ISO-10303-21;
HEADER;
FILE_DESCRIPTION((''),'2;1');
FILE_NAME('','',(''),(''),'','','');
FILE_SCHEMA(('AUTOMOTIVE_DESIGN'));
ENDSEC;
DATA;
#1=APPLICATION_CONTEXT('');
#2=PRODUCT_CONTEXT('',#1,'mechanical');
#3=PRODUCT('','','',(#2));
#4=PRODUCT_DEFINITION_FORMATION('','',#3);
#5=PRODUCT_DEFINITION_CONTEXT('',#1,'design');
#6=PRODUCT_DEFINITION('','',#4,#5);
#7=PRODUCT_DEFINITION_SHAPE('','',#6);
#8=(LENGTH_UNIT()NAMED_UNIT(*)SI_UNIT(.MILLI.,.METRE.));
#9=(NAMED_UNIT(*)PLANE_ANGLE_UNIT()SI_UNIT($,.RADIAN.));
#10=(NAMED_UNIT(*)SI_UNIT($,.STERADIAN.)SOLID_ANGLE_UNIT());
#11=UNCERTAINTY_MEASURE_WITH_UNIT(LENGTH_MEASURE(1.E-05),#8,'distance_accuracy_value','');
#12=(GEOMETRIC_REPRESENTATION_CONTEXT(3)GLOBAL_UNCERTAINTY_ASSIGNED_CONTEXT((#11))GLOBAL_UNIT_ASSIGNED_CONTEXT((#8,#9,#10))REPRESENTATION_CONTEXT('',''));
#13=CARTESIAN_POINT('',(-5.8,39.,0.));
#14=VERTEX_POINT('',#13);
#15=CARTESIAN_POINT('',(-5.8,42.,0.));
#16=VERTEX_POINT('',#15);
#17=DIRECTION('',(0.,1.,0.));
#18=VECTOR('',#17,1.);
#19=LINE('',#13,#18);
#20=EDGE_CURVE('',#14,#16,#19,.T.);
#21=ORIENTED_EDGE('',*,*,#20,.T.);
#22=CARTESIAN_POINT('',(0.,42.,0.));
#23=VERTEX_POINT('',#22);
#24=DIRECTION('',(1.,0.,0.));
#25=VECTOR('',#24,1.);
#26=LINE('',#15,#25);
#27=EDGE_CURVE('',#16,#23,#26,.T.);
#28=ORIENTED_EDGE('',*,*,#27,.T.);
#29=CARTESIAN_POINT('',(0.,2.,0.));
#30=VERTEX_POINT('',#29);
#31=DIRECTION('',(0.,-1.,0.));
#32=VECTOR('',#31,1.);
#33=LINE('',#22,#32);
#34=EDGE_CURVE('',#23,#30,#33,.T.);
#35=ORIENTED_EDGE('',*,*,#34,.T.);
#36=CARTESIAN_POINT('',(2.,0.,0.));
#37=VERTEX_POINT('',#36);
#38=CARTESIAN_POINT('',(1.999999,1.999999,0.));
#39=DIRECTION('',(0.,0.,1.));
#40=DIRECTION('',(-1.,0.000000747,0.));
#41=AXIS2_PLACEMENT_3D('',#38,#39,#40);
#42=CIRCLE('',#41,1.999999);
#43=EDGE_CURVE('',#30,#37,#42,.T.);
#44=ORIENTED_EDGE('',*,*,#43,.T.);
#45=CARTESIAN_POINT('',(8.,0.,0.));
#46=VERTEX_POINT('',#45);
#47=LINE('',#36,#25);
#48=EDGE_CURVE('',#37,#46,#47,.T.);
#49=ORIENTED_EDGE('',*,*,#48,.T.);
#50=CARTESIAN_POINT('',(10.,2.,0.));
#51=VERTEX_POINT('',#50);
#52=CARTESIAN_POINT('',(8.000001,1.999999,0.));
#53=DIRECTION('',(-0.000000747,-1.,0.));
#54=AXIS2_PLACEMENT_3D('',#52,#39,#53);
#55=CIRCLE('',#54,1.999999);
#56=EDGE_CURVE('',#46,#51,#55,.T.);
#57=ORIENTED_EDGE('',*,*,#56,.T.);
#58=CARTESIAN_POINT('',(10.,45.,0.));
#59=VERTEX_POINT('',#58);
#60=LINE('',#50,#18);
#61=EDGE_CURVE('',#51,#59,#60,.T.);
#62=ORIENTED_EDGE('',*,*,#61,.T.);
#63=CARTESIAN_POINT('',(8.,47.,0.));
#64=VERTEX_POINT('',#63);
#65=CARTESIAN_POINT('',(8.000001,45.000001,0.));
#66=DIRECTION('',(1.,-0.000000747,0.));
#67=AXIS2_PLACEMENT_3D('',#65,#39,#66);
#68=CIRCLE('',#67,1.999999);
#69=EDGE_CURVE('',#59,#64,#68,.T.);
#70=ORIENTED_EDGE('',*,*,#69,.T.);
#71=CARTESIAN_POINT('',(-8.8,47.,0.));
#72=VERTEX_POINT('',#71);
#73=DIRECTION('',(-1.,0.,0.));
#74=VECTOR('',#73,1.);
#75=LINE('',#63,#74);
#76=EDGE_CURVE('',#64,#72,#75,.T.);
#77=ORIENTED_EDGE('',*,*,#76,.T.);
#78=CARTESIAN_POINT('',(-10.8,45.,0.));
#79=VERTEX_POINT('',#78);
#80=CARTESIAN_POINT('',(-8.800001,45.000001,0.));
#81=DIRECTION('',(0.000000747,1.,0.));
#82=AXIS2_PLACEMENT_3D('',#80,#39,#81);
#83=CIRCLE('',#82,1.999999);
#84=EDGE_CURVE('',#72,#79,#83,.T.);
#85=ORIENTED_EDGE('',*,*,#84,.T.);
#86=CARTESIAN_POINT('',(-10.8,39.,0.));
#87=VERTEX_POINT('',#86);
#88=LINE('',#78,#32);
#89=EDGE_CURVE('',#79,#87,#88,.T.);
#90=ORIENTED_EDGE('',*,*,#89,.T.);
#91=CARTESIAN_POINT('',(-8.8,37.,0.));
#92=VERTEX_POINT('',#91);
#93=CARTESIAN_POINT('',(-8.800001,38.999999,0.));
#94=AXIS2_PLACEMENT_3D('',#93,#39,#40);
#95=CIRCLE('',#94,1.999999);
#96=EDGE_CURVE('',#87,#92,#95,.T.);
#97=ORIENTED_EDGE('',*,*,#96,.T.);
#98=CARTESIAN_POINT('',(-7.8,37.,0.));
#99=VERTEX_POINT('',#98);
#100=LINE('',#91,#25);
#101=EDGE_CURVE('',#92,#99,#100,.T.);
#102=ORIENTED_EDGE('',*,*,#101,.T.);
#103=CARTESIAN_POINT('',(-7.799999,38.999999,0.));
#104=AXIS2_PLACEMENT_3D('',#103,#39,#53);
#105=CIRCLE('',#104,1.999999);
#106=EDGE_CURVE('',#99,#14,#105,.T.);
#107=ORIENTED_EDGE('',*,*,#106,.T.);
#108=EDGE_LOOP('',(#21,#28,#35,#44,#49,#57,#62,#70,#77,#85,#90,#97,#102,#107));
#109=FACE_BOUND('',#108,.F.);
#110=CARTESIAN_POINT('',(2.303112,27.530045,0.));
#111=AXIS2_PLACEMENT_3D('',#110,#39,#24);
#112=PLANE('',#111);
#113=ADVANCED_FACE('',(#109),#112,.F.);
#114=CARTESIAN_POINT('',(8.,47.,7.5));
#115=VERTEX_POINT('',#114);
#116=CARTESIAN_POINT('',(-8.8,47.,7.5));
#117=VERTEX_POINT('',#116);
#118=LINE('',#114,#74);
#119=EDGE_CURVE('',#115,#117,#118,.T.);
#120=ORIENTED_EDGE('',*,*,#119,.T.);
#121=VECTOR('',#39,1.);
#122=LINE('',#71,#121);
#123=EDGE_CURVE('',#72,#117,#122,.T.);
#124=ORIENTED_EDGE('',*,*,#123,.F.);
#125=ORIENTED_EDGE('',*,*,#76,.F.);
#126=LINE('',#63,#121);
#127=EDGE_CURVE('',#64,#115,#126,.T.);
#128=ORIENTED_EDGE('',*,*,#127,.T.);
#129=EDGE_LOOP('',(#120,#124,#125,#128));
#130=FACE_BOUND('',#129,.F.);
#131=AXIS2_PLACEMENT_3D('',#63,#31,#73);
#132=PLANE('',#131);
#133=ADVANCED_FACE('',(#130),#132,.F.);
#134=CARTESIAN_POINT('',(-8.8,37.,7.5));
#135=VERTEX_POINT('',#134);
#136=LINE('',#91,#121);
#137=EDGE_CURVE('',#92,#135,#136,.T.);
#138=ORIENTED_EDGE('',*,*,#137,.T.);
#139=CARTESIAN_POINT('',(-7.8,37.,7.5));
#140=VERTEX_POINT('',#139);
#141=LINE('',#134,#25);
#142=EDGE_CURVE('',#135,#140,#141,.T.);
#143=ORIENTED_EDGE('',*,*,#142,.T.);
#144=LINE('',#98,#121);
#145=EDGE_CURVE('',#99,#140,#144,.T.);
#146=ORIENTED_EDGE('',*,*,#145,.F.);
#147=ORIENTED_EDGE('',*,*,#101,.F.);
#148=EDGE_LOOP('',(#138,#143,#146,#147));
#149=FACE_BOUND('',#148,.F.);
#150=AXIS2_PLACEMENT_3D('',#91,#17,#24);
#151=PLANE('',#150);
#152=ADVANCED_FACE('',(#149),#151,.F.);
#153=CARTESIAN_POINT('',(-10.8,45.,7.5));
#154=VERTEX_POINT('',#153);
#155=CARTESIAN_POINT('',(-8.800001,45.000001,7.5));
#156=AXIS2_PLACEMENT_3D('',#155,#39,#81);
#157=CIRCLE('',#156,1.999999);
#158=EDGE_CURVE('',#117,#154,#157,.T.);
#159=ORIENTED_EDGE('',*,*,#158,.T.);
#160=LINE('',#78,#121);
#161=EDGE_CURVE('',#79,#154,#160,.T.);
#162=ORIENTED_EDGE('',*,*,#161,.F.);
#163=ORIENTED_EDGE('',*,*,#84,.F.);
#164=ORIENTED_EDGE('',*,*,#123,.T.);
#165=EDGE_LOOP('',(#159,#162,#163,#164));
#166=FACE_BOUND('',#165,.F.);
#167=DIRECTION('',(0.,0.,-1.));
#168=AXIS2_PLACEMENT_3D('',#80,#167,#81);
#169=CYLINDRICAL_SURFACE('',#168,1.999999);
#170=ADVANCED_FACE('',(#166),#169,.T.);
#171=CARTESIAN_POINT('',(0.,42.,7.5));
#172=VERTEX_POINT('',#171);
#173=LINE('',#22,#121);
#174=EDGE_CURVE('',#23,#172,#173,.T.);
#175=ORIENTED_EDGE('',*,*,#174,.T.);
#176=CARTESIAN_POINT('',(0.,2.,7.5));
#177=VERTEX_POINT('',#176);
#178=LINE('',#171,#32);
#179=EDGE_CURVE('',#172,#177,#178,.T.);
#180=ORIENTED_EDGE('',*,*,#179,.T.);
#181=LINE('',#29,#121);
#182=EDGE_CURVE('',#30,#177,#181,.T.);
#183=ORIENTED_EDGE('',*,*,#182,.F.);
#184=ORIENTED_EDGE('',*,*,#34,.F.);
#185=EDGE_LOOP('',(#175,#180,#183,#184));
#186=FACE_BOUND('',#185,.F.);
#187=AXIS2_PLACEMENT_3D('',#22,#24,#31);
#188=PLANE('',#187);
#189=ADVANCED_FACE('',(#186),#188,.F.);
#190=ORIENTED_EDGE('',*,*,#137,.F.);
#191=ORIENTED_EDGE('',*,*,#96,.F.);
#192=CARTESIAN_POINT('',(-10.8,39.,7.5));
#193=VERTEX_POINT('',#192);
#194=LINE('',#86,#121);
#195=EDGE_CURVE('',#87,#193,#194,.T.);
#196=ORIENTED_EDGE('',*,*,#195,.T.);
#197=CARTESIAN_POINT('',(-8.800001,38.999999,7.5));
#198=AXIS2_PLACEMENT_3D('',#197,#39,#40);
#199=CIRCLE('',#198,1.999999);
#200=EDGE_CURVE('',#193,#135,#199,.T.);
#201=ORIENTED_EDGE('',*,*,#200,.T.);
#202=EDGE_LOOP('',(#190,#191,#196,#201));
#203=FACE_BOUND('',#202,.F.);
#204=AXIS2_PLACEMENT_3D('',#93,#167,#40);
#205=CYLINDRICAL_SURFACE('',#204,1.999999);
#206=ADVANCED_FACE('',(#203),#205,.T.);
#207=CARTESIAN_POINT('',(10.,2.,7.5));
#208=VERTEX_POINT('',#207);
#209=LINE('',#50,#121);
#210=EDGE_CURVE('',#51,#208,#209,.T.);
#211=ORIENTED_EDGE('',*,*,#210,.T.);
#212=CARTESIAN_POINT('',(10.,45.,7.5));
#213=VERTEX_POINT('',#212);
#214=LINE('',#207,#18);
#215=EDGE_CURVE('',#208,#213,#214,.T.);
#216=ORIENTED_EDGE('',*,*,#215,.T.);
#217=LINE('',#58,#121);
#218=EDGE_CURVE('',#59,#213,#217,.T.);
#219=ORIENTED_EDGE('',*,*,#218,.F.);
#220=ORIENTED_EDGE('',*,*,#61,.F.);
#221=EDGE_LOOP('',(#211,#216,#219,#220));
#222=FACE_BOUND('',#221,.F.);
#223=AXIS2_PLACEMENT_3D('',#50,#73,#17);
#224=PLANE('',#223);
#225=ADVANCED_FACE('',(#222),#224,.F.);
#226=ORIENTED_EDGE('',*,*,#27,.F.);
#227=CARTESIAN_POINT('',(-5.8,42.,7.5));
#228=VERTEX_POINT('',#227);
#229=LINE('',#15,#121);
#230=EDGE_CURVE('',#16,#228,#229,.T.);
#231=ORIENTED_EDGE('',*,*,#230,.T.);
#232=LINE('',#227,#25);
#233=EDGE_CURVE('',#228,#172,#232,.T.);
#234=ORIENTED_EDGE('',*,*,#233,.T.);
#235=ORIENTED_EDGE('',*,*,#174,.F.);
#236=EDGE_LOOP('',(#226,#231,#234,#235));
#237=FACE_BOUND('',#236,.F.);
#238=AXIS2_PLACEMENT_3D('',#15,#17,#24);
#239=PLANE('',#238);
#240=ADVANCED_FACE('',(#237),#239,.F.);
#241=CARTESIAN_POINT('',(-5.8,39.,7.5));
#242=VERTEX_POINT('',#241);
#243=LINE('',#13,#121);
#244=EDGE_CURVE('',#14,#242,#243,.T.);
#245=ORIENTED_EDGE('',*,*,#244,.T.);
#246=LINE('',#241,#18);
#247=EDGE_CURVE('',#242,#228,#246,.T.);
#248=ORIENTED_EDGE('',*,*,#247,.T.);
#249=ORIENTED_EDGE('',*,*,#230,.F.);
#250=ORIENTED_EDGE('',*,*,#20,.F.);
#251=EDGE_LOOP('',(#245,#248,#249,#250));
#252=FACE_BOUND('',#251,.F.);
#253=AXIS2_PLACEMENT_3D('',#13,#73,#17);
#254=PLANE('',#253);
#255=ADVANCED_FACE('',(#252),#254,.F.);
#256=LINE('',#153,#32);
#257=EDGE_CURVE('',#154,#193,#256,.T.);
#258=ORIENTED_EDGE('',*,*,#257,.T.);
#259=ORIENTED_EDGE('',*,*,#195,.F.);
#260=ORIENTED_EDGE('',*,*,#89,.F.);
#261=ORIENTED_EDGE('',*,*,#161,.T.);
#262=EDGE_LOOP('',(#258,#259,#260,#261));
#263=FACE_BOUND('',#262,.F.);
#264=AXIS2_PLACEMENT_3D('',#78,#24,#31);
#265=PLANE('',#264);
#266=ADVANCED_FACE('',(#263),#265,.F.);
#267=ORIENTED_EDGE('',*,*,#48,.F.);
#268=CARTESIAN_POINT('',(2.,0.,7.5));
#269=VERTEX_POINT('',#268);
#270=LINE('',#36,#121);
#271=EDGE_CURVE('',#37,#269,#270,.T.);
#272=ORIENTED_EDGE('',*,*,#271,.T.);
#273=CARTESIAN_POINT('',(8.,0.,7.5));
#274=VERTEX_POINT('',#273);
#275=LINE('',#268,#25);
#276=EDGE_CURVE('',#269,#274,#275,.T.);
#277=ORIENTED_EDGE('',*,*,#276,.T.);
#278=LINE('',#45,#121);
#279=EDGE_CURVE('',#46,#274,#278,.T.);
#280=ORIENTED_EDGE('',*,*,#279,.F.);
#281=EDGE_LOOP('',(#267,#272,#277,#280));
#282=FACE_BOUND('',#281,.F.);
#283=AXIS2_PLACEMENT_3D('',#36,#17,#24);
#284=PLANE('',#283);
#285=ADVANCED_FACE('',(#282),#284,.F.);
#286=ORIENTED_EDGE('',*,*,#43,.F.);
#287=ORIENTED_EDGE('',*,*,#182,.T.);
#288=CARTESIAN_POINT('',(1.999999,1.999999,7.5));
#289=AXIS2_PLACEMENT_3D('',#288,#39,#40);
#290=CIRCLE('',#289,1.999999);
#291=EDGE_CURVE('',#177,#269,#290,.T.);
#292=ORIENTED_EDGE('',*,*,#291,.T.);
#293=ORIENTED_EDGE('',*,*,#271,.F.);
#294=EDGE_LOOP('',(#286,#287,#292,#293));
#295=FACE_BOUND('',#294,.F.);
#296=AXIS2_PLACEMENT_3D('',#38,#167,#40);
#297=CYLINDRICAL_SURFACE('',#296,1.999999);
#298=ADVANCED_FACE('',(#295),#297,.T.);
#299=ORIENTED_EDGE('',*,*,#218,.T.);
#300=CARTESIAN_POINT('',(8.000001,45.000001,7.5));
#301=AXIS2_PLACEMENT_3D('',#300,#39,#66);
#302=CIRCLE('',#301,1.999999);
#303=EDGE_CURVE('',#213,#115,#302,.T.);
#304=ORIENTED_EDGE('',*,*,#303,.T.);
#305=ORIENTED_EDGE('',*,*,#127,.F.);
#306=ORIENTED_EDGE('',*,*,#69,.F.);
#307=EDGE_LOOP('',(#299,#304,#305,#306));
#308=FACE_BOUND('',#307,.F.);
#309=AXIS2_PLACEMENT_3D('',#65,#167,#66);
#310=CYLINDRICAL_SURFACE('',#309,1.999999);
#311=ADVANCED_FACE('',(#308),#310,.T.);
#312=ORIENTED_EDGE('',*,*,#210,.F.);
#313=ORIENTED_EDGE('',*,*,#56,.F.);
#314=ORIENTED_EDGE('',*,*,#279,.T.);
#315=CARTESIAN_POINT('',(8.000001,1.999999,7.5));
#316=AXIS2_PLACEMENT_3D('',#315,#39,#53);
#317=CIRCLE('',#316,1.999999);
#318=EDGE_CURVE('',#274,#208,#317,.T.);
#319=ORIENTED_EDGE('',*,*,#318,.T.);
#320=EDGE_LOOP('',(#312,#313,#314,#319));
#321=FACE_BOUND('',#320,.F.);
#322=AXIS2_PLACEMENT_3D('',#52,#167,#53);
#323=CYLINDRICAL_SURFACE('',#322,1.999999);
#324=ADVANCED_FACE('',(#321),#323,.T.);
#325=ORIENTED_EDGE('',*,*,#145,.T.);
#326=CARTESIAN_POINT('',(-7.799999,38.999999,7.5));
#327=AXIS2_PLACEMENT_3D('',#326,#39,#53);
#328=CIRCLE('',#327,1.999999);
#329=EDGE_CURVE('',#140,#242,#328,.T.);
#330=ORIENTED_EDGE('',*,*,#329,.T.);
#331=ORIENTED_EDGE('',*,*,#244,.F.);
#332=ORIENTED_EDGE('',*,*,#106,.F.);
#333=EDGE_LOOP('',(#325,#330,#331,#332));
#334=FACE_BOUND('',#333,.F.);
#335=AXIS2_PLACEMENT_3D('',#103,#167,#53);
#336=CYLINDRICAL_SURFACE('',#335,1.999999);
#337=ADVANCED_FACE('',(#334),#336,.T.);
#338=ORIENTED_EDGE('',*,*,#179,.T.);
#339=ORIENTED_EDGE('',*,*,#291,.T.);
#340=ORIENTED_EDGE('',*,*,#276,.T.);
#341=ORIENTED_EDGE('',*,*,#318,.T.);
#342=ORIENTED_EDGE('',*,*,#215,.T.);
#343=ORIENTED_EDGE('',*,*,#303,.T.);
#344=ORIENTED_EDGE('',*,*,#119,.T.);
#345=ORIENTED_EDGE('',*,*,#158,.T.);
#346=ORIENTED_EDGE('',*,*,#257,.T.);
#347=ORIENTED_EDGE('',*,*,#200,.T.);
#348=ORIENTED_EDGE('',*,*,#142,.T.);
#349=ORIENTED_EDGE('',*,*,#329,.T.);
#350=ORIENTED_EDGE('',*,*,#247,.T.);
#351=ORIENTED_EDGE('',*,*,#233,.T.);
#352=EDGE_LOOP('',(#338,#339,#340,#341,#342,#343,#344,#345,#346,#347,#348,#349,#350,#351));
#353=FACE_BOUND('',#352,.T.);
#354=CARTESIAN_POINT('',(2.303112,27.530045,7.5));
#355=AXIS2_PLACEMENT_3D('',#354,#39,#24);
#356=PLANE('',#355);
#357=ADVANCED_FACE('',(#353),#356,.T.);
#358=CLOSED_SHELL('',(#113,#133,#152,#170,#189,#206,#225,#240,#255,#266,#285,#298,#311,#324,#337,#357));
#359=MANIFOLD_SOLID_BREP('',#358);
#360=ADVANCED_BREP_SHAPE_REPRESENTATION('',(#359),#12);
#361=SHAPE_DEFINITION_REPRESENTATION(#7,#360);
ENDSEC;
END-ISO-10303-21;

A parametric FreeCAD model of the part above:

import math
import FreeCAD as App
import Part
import Sketcher

V = App.Vector

doc = App.newDocument("Part")
params = doc.addObject("Spreadsheet::Sheet", "Params")
for row, (alias, value) in enumerate([
    ("sketch1_radius", "1.999999 mm"),
    ("sketch1_width", "6 mm"),
    ("sketch1_width2", "1 mm"),
    ("sketch1_height", "43 mm"),
    ("sketch1_height2", "3 mm"),
    ("pad1_length", "7.5 mm"),
], start=1):
    params.set(f"A{row}", alias)
    params.set(f"B{row}", "=" + value)
    params.setAlias(f"B{row}", alias)

body = doc.addObject("PartDesign::Body", "Body")

# Sketch on XY plane
sketch1 = body.newObject("Sketcher::SketchObject", "Sketch")
sketch1.AttachmentSupport = (doc.getObject("XY_Plane"), [""])
sketch1.MapMode = "FlatFace"
sketch1.addGeometry([
    Part.ArcOfCircle(Part.Circle(V(2, 2, 0), V(0, 0, 1), 2), math.radians(180), math.radians(270)),  # 0
    Part.LineSegment(V(2, 0, 0), V(8, 0, 0)),  # 1
    Part.ArcOfCircle(Part.Circle(V(8, 2, 0), V(0, 0, 1), 2), math.radians(-90), math.radians(0)),  # 2
    Part.LineSegment(V(10, 2, 0), V(10, 45, 0)),  # 3
    Part.ArcOfCircle(Part.Circle(V(8, 45, 0), V(0, 0, 1), 2), math.radians(0), math.radians(90)),  # 4
    Part.LineSegment(V(8, 47, 0), V(-8.8, 47, 0)),  # 5
    Part.ArcOfCircle(Part.Circle(V(-8.8, 45, 0), V(0, 0, 1), 2), math.radians(90), math.radians(180)),  # 6
    Part.LineSegment(V(-10.8, 45, 0), V(-10.8, 39, 0)),  # 7
    Part.ArcOfCircle(Part.Circle(V(-8.8, 39, 0), V(0, 0, 1), 2), math.radians(180), math.radians(270)),  # 8
    Part.LineSegment(V(-8.8, 37, 0), V(-7.8, 37, 0)),  # 9
    Part.ArcOfCircle(Part.Circle(V(-7.8, 39, 0), V(0, 0, 1), 2), math.radians(-90), math.radians(0)),  # 10
    Part.LineSegment(V(-5.8, 39, 0), V(-5.8, 42, 0)),  # 11
    Part.LineSegment(V(-5.8, 42, 0), V(0, 42, 0)),  # 12
    Part.LineSegment(V(0, 42, 0), V(0, 2, 0)),  # 13
], False)
sketch1.addConstraint([
    Sketcher.Constraint("Tangent", 0, 2, 1, 1),
    Sketcher.Constraint("Tangent", 1, 2, 2, 1),
    Sketcher.Constraint("Tangent", 2, 2, 3, 1),
    Sketcher.Constraint("Tangent", 3, 2, 4, 1),
    Sketcher.Constraint("Tangent", 4, 2, 5, 1),
    Sketcher.Constraint("Tangent", 5, 2, 6, 1),
    Sketcher.Constraint("Tangent", 6, 2, 7, 1),
    Sketcher.Constraint("Tangent", 7, 2, 8, 1),
    Sketcher.Constraint("Tangent", 8, 2, 9, 1),
    Sketcher.Constraint("Tangent", 9, 2, 10, 1),
    Sketcher.Constraint("Tangent", 10, 2, 11, 1),
    Sketcher.Constraint("Coincident", 11, 2, 12, 1),
    Sketcher.Constraint("Coincident", 12, 2, 13, 1),
    Sketcher.Constraint("Tangent", 13, 2, 0, 1),
    Sketcher.Constraint("Horizontal", 1),
    Sketcher.Constraint("Vertical", 3),
    Sketcher.Constraint("Horizontal", 5),
    Sketcher.Constraint("Vertical", 7),
    Sketcher.Constraint("Horizontal", 9),
    Sketcher.Constraint("Vertical", 11),
    Sketcher.Constraint("Horizontal", 12),
    Sketcher.Constraint("Vertical", 13),
    Sketcher.Constraint("Equal", 0, 2),
    Sketcher.Constraint("Equal", 2, 4),
    Sketcher.Constraint("Equal", 4, 6),
    Sketcher.Constraint("Equal", 6, 8),
    Sketcher.Constraint("Equal", 8, 10),
    Sketcher.Constraint("PointOnObject", 0, 2, -1),
    Sketcher.Constraint("PointOnObject", 12, 2, -2),
    Sketcher.Constraint("Equal", 1, 7),
    Sketcher.Constraint("Radius", 0, 1.999999),
    Sketcher.Constraint("DistanceX", 1, 1, 1, 2, 6.0),
    Sketcher.Constraint("DistanceX", 9, 1, 9, 2, 1.0),
    Sketcher.Constraint("DistanceY", 3, 1, 3, 2, 43.0),
    Sketcher.Constraint("DistanceY", 11, 1, 11, 2, 3.0),
    Sketcher.Constraint("DistanceX", 5, 2, 5, 1, 16.8),
])
sketch1.setExpression("Constraints[30]", "Params.sketch1_radius")
sketch1.setExpression("Constraints[31]", "Params.sketch1_width")
sketch1.setExpression("Constraints[32]", "Params.sketch1_width2")
sketch1.setExpression("Constraints[33]", "Params.sketch1_height")
sketch1.setExpression("Constraints[34]", "Params.sketch1_height2")
pad1 = body.newObject("PartDesign::Pad", "Pad")
pad1.Profile = sketch1
pad1.setExpression("Length", "Params.pad1_length")

doc.recompute()
